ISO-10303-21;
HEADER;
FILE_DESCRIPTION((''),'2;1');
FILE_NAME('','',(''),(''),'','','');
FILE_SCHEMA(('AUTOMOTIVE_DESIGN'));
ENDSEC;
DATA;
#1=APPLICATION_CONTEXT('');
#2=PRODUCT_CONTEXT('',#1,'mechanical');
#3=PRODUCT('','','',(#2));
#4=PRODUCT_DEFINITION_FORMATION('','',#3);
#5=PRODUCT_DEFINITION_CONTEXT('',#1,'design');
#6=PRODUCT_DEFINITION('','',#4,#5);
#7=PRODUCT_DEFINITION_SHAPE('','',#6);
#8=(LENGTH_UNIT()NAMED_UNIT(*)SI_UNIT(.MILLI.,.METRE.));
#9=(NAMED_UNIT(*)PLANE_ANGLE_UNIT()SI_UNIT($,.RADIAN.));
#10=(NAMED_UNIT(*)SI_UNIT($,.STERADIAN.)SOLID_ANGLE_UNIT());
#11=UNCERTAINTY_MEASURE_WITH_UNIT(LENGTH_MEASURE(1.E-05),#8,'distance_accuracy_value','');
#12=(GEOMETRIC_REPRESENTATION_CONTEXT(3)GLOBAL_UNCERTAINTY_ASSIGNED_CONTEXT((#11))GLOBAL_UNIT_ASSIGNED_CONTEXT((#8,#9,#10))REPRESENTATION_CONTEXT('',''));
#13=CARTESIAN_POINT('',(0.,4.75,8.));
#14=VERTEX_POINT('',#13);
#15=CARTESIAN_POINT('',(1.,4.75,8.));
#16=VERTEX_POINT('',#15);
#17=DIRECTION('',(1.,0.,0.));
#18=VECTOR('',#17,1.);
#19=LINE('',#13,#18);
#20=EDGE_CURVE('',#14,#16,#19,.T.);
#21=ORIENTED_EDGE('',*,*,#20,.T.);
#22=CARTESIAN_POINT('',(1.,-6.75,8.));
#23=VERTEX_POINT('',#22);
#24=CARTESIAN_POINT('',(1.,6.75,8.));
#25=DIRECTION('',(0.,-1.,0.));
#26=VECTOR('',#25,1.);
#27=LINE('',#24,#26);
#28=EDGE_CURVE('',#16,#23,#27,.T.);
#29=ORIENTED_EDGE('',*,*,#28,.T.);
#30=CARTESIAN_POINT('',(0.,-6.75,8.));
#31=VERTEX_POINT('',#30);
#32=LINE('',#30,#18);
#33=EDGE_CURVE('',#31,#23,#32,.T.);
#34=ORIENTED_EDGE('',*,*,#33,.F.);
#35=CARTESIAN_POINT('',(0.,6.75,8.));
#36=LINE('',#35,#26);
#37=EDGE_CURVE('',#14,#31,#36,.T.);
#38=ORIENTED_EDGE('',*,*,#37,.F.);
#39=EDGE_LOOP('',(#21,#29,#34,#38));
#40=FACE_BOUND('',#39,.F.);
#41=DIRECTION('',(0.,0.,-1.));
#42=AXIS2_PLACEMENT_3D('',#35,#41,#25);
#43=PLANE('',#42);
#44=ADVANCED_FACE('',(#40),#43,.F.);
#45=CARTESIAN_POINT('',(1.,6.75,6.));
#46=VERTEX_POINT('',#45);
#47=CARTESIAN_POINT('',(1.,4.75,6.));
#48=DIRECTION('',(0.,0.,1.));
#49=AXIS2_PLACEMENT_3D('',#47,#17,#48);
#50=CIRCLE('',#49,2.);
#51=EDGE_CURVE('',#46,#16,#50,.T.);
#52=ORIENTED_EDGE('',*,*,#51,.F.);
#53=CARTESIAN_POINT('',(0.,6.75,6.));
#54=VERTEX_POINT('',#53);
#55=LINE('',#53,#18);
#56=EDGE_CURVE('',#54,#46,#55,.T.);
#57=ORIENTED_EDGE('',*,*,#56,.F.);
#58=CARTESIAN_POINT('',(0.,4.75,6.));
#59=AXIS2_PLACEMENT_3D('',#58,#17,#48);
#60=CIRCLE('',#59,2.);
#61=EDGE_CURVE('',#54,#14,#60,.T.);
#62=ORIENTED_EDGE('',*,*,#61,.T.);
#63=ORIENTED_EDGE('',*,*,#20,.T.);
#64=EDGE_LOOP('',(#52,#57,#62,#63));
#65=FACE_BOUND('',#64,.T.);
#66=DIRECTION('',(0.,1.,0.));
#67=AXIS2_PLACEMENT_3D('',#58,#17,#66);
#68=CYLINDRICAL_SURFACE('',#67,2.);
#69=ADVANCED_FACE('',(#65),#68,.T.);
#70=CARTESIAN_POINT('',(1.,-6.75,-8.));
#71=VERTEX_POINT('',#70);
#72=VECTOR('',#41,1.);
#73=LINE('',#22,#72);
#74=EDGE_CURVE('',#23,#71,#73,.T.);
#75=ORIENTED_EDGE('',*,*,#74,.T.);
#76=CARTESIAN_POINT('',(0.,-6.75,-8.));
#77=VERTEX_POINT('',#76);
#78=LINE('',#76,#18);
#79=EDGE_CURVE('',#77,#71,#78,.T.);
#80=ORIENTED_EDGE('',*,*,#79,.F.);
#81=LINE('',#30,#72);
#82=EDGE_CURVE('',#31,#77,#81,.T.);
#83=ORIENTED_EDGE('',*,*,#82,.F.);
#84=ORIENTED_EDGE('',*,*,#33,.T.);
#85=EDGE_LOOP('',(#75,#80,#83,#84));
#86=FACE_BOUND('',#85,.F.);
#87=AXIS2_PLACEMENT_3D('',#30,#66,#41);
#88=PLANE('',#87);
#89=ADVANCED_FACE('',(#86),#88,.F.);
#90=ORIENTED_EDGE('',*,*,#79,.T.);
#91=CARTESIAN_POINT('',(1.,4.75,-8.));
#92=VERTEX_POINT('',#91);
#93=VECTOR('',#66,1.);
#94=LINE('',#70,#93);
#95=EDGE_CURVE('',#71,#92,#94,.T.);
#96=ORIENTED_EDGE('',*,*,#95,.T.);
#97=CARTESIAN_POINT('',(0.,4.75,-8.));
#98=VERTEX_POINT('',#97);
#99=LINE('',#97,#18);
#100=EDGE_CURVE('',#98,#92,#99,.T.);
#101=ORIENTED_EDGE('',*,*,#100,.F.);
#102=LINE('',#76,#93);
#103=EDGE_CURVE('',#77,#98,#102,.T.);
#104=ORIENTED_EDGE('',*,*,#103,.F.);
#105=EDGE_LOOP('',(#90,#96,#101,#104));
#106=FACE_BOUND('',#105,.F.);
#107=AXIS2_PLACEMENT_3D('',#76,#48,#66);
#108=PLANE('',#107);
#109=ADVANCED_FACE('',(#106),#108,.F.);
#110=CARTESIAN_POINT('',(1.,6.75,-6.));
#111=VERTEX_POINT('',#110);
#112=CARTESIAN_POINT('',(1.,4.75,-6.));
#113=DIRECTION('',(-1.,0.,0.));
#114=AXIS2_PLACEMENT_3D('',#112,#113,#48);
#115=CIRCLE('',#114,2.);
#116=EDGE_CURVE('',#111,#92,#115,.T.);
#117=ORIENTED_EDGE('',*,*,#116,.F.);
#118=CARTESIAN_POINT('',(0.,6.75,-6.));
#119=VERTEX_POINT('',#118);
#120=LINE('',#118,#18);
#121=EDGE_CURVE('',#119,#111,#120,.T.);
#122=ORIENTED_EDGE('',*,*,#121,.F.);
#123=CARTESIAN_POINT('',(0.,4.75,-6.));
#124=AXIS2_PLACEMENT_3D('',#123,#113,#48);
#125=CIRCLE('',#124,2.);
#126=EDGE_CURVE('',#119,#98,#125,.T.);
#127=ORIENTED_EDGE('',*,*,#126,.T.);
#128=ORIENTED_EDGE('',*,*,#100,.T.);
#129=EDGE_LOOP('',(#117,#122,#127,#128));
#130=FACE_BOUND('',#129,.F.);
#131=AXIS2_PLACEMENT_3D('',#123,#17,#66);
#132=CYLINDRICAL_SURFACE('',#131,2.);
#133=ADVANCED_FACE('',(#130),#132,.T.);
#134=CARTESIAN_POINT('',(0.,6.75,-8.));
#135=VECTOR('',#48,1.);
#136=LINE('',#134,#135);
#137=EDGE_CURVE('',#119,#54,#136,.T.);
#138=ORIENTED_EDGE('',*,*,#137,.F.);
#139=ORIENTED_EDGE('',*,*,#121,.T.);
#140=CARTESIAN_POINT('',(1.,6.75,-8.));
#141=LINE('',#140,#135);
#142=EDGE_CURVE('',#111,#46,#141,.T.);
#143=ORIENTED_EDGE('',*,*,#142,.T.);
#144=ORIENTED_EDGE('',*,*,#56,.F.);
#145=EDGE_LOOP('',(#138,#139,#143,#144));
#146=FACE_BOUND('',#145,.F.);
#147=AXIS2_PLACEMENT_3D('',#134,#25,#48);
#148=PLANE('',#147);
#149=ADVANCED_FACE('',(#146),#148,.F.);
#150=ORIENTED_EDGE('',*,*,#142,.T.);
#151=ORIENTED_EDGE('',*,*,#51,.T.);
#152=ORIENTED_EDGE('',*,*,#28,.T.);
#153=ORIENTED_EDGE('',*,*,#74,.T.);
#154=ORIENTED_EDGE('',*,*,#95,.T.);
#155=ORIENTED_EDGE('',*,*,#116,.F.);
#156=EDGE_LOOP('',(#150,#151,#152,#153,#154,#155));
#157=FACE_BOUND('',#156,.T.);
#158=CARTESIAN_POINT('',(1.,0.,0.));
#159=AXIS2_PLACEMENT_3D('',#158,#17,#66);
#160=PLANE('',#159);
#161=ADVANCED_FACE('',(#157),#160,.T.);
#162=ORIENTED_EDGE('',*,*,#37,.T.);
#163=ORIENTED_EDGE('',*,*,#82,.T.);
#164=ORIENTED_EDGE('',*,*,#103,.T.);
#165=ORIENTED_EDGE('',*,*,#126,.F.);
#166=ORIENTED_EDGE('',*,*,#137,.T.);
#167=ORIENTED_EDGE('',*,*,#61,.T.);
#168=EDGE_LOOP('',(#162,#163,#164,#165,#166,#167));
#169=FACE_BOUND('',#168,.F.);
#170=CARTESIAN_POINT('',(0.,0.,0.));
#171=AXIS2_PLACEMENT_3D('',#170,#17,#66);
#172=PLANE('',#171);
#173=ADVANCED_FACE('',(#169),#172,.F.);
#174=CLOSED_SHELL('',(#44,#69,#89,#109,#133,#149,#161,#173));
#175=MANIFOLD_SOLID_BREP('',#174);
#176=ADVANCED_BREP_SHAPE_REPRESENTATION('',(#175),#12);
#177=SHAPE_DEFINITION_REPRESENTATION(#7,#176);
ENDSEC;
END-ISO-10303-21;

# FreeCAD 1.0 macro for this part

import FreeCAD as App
import Part
import Sketcher

V = App.Vector
Q = App.Units.Quantity


def edges_at(feature, points):
    """Names of the edges that pass closest to the given points."""
    edges = feature.Shape.Edges
    near = lambda p: min(range(len(edges)), key=lambda i: edges[i].distToShape(Part.Vertex(*p))[0])
    return sorted({f"Edge{near(p) + 1}" for p in points})

doc = App.newDocument("Part")
params = doc.addObject("Spreadsheet::Sheet", "Params")
for row, (alias, value) in enumerate([
    ("sketch1_height", "16 mm"),
    ("sketch1_width", "13.5 mm"),
    ("pad1_length", "1 mm"),
    ("fillet_radius", "2 mm"),
], start=1):
    params.set(f"A{row}", alias)
    params.set(f"B{row}", "=" + value)
    params.setAlias(f"B{row}", alias)

body = doc.addObject("PartDesign::Body", "Body")

sketch1 = body.newObject("Sketcher::SketchObject", "Sketch")
sketch1.AttachmentSupport = (doc.getObject("YZ_Plane"), [""])
sketch1.MapMode = "FlatFace"
sketch1.addGeometry(Part.LineSegment(V(6.75, -8, 0), V(6.75, 8, 0)), False)
sketch1.addGeometry(Part.LineSegment(V(6.75, 8, 0), V(-6.75, 8, 0)), False)
sketch1.addGeometry(Part.LineSegment(V(-6.75, 8, 0), V(-6.75, -8, 0)), False)
sketch1.addGeometry(Part.LineSegment(V(-6.75, -8, 0), V(6.75, -8, 0)), False)
sketch1.addConstraint(Sketcher.Constraint("Coincident", 0, 2, 1, 1))
sketch1.addConstraint(Sketcher.Constraint("Coincident", 1, 2, 2, 1))
sketch1.addConstraint(Sketcher.Constraint("Coincident", 2, 2, 3, 1))
sketch1.addConstraint(Sketcher.Constraint("Coincident", 3, 2, 0, 1))
sketch1.addConstraint(Sketcher.Constraint("Vertical", 0))
sketch1.addConstraint(Sketcher.Constraint("Horizontal", 1))
sketch1.addConstraint(Sketcher.Constraint("Vertical", 2))
sketch1.addConstraint(Sketcher.Constraint("Horizontal", 3))
sketch1.addConstraint(Sketcher.Constraint("Symmetric", 0, 2, 2, 2, -1, 1))
sketch1.addConstraint(Sketcher.Constraint("DistanceY", 0, 1, 0, 2, Q("16 mm")))
sketch1.addConstraint(Sketcher.Constraint("DistanceX", 1, 2, 1, 1, Q("13.5 mm")))
sketch1.setExpression("Constraints[9]", "Params.sketch1_height")
sketch1.setExpression("Constraints[10]", "Params.sketch1_width")
pad1 = body.newObject("PartDesign::Pad", "Pad")
pad1.Profile = sketch1
pad1.setExpression("Length", "Params.pad1_length")
doc.recompute()

fillet = body.newObject("PartDesign::Fillet", "Fillet")
fillet.Base = (pad1, edges_at(pad1, [(0.5, 6.75, 8), (0.5, 6.75, -8)]))
fillet.setExpression("Radius", "Params.fillet_radius")

doc.recompute()
